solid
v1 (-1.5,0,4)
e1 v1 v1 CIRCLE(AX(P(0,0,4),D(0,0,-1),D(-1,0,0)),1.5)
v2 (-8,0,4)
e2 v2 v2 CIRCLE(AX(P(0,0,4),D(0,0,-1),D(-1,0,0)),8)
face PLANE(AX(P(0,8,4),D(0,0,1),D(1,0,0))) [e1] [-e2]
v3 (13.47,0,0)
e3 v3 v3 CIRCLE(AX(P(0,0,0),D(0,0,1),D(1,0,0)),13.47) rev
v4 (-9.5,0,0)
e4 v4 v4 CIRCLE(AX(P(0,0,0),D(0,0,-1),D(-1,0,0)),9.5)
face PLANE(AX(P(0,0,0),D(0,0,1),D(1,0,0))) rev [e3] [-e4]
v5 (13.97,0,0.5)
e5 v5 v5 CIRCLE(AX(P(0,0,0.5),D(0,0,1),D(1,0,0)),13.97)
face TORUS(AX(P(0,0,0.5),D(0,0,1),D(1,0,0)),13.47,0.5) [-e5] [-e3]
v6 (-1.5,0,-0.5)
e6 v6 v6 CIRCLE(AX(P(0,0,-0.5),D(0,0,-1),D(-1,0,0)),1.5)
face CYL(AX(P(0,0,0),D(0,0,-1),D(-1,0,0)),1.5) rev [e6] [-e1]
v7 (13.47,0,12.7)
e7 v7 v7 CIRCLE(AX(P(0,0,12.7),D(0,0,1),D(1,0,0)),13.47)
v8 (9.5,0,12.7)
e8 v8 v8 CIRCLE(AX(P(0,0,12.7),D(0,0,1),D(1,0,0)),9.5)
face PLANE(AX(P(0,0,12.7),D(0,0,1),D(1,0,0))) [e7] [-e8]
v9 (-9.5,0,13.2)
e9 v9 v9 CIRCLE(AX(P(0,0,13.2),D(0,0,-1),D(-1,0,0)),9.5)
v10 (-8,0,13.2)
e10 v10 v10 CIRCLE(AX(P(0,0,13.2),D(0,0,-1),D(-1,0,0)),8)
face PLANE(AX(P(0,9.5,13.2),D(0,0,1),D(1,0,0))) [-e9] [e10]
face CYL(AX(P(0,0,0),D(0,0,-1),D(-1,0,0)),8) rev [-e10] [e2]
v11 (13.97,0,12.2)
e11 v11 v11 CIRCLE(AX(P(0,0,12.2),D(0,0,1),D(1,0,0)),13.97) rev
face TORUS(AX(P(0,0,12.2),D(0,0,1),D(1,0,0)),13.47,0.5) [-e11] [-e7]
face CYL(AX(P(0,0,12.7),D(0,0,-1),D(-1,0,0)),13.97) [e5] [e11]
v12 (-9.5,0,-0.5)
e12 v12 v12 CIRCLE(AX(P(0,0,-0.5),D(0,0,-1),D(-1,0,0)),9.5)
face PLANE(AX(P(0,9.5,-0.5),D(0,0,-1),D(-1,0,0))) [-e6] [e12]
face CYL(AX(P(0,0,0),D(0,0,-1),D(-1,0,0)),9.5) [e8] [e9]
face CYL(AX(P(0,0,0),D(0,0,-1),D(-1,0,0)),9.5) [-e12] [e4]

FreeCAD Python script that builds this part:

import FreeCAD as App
import Part
import Sketcher

V = App.Vector


def edges_at(feature, points):
    """Names of the edges that pass closest to the given points."""
    edges = feature.Shape.Edges
    near = lambda p: min(range(len(edges)), key=lambda i: edges[i].distToShape(Part.Vertex(*p))[0])
    return sorted({f"Edge{near(p) + 1}" for p in points})

doc = App.newDocument("Part")
body = doc.addObject("PartDesign::Body", "Body")

# Sketch on XY plane
sketch1 = body.newObject("Sketcher::SketchObject", "Sketch")
sketch1.AttachmentSupport = (doc.getObject("XY_Plane"), [""])
sketch1.MapMode = "FlatFace"
sketch1.addGeometry(Part.Circle(V(0, 0, 0), V(0, 0, 1), 13.97), False)
sketch1.addGeometry(Part.Circle(V(0, 0, 0), V(0, 0, 1), 8.5), False)
sketch1.addConstraint(Sketcher.Constraint("Coincident", 0, 3, -1, 1))
sketch1.addConstraint(Sketcher.Constraint("Coincident", 1, 3, -1, 1))
sketch1.addConstraint(Sketcher.Constraint("Diameter", 1, 17.0))
sketch1.addConstraint(Sketcher.Constraint("Diameter", 0, 27.94))
pad1 = body.newObject("PartDesign::Pad", "Pad")
pad1.Profile = sketch1
pad1.Length = 12.7
doc.recompute()

fillet = body.newObject("PartDesign::Fillet", "Fillet")
fillet.Base = (pad1, edges_at(pad1, [(-13.97, 0, 0), (-13.97, 0, 12.7)]))
fillet.Radius = 0.5

# Sketch on YZ plane
sketch2 = body.newObject("Sketcher::SketchObject", "Sketch001")
sketch2.AttachmentSupport = (doc.getObject("YZ_Plane"), [""])
sketch2.MapMode = "FlatFace"
sketch2.addGeometry(Part.LineSegment(V(8.5, 0, 0), V(8.5, 12.7, 0)), False)
sketch2.addGeometry(Part.LineSegment(V(8.5, 12.7, 0), V(9.5, 12.7, 0)), False)
sketch2.addGeometry(Part.LineSegment(V(9.5, 12.7, 0), V(9.5, 13.2, 0)), False)
sketch2.addGeometry(Part.LineSegment(V(9.5, 13.2, 0), V(8, 13.2, 0)), False)
sketch2.addGeometry(Part.LineSegment(V(8, 13.2, 0), V(8, 4, 0)), False)
sketch2.addGeometry(Part.LineSegment(V(8, 4, 0), V(1.5, 4, 0)), False)
sketch2.addGeometry(Part.LineSegment(V(1.5, 4, 0), V(1.5, -0.5, 0)), False)
sketch2.addGeometry(Part.LineSegment(V(1.5, -0.5, 0), V(9.5, -0.5, 0)), False)
sketch2.addGeometry(Part.LineSegment(V(9.5, -0.5, 0), V(9.5, 0, 0)), False)
sketch2.addGeometry(Part.LineSegment(V(9.5, 0, 0), V(8.5, 0, 0)), False)
sketch2.addConstraint(Sketcher.Constraint("Coincident", 0, 2, 1, 1))
sketch2.addConstraint(Sketcher.Constraint("Coincident", 1, 2, 2, 1))
sketch2.addConstraint(Sketcher.Constraint("Coincident", 2, 2, 3, 1))
sketch2.addConstraint(Sketcher.Constraint("Coincident", 3, 2, 4, 1))
sketch2.addConstraint(Sketcher.Constraint("Coincident", 4, 2, 5, 1))
sketch2.addConstraint(Sketcher.Constraint("Coincident", 5, 2, 6, 1))
sketch2.addConstraint(Sketcher.Constraint("Coincident", 6, 2, 7, 1))
sketch2.addConstraint(Sketcher.Constraint("Coincident", 7, 2, 8, 1))
sketch2.addConstraint(Sketcher.Constraint("Coincident", 8, 2, 9, 1))
sketch2.addConstraint(Sketcher.Constraint("Coincident", 9, 2, 0, 1))
sketch2.addConstraint(Sketcher.Constraint("Vertical", 0))
sketch2.addConstraint(Sketcher.Constraint("Horizontal", 1))
sketch2.addConstraint(Sketcher.Constraint("Vertical", 2))
sketch2.addConstraint(Sketcher.Constraint("Horizontal", 3))
sketch2.addConstraint(Sketcher.Constraint("Vertical", 4))
sketch2.addConstraint(Sketcher.Constraint("Horizontal", 5))
sketch2.addConstraint(Sketcher.Constraint("Vertical", 6))
sketch2.addConstraint(Sketcher.Constraint("Horizontal", 7))
sketch2.addConstraint(Sketcher.Constraint("Vertical", 8))
sketch2.addConstraint(Sketcher.Constraint("Horizontal", 9))
sketch2.addConstraint(Sketcher.Constraint("PointOnObject", 8, 2, -1))
sketch2.addConstraint(Sketcher.Constraint("Vertical", 2, 2, 7, 2))
sketch2.addConstraint(Sketcher.Constraint("Equal", 2, 8))
sketch2.addConstraint(Sketcher.Constraint("DistanceX", 1, 1, 1, 2, 1.0))
sketch2.addConstraint(Sketcher.Constraint("DistanceX", 7, 1, 7, 2, 8.0))
sketch2.addConstraint(Sketcher.Constraint("DistanceX", 3, 2, 3, 1, 1.5))
sketch2.addConstraint(Sketcher.Constraint("DistanceY", 0, 1, 0, 2, 12.7))
sketch2.addConstraint(Sketcher.Constraint("DistanceY", 2, 1, 2, 2, 0.5))
sketch2.addConstraint(Sketcher.Constraint("DistanceY", 4, 2, 4, 1, 9.2))
sketch2.addConstraint(Sketcher.Constraint("DistanceX", -1, 1, 3, 2, 8.0))
revolution = body.newObject("PartDesign::Revolution", "Revolution")
revolution.Profile = sketch2
revolution.ReferenceAxis = (sketch2, ["V_Axis"])
revolution.Angle = 360

doc.recompute()
